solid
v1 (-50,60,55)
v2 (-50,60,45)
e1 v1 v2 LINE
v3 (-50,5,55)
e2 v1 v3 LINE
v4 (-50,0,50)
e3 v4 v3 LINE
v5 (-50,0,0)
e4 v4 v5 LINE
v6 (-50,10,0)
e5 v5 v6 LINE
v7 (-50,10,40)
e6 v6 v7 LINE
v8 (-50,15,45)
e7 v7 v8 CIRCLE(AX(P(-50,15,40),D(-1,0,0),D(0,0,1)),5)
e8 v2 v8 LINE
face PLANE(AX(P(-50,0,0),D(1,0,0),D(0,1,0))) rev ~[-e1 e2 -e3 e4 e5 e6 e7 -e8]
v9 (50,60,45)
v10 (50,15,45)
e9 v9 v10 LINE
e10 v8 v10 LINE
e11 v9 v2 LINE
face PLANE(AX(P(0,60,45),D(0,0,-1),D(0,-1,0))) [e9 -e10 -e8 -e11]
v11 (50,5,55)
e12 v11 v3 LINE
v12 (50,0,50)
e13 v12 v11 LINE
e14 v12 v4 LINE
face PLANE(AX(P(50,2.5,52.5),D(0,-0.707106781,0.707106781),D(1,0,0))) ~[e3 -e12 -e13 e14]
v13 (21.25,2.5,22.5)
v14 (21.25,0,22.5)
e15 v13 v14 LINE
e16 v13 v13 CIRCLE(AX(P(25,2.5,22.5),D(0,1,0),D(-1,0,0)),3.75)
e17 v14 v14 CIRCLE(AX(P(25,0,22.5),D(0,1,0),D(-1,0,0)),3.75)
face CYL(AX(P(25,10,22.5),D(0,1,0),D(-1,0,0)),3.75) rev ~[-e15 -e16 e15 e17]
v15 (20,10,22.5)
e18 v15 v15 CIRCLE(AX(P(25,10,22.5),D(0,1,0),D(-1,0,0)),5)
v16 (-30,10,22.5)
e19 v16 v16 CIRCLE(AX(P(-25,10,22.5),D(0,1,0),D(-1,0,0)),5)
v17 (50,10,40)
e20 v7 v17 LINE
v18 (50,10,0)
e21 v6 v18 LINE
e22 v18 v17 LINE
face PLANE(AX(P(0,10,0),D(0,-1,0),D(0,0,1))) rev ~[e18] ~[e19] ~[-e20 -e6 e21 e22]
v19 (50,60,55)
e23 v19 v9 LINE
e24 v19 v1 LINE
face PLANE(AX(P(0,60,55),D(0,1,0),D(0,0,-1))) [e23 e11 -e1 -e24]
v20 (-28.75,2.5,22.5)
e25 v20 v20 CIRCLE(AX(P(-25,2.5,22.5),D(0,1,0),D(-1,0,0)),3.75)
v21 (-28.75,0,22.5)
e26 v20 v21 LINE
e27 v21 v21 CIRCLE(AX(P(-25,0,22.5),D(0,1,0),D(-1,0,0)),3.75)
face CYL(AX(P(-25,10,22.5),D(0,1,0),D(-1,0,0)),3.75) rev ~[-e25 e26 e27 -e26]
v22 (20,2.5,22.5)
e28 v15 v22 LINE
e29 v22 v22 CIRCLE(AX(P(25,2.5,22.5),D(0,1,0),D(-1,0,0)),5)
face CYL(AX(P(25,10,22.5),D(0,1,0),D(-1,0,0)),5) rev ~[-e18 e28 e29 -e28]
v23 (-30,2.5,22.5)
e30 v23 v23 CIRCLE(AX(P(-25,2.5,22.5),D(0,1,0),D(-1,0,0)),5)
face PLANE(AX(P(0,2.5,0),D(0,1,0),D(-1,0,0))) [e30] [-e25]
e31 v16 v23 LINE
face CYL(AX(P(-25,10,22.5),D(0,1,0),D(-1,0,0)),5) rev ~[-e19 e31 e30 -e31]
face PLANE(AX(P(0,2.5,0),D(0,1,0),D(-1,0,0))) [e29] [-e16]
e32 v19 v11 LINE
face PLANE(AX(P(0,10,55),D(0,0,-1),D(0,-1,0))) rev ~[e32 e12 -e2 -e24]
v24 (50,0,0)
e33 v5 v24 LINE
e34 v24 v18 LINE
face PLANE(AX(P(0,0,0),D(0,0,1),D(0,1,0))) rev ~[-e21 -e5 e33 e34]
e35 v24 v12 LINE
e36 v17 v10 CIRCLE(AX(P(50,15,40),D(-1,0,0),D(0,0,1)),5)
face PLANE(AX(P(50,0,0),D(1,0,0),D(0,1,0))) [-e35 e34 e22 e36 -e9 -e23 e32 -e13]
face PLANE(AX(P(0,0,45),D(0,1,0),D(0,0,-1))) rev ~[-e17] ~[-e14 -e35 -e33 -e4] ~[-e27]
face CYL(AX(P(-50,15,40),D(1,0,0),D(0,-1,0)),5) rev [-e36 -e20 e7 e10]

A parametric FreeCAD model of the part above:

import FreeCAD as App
import Part
import Sketcher
from FreeCAD import Vector


def edges_at(feature, points):
    """Names of the edges that pass closest to the given points."""
    edges = feature.Shape.Edges
    near = lambda p: min(range(len(edges)), key=lambda i: edges[i].distToShape(Part.Vertex(*p))[0])
    return sorted({f"Edge{near(p) + 1}" for p in points})

doc = App.newDocument("Part")
body = doc.addObject("PartDesign::Body", "Body")

sketch1 = doc.addObject("Sketcher::SketchObject", "Sketch")
body.addObject(sketch1)
sketch1.AttachmentSupport = (doc.YZ_Plane, [""])
sketch1.MapMode = "FlatFace"
sketch1.addGeometry([
    Part.LineSegment(Vector(0, 55, 0), Vector(0, 0, 0)),
    Part.LineSegment(Vector(0, 0, 0), Vector(10, 0, 0)),
    Part.LineSegment(Vector(10, 0, 0), Vector(10, 45, 0)),
    Part.LineSegment(Vector(10, 45, 0), Vector(60, 45, 0)),
    Part.LineSegment(Vector(60, 45, 0), Vector(60, 55, 0)),
    Part.LineSegment(Vector(60, 55, 0), Vector(0, 55, 0)),
], False)
sketch1.addConstraint([
    Sketcher.Constraint("Coincident", 0, 2, 1, 1),
    Sketcher.Constraint("Coincident", 1, 2, 2, 1),
    Sketcher.Constraint("Coincident", 2, 2, 3, 1),
    Sketcher.Constraint("Coincident", 3, 2, 4, 1),
    Sketcher.Constraint("Coincident", 4, 2, 5, 1),
    Sketcher.Constraint("Coincident", 5, 2, 0, 1),
    Sketcher.Constraint("Vertical", 0),
    Sketcher.Constraint("Horizontal", 1),
    Sketcher.Constraint("Vertical", 2),
    Sketcher.Constraint("Horizontal", 3),
    Sketcher.Constraint("Vertical", 4),
    Sketcher.Constraint("Horizontal", 5),
    Sketcher.Constraint("Coincident", 0, 2, -1, 1),
    Sketcher.Constraint("Equal", 1, 4),
    Sketcher.Constraint("DistanceX", 1, 1, 1, 2, 10.0),
    Sketcher.Constraint("DistanceX", 3, 1, 3, 2, 50.0),
    Sketcher.Constraint("DistanceY", 0, 2, 0, 1, 55.0),
])
pad1 = doc.addObject("PartDesign::Pad", "Pad")
body.addObject(pad1)
pad1.Profile = sketch1
pad1.Length = 100
pad1.Midplane = True

sketch2 = doc.addObject("Sketcher::SketchObject", "Sketch001")
body.addObject(sketch2)
sketch2.AttachmentSupport = (doc.XZ_Plane, [""])
sketch2.MapMode = "FlatFace"
sketch2.AttachmentOffset = App.Placement(Vector(0, 0, -10), App.Rotation())
sketch2.addGeometry([
    Part.Circle(Vector(-25, 22.5, 0), Vector(0, 0, 1), 3.8),
    Part.Circle(Vector(25, 22.5, 0), Vector(0, 0, 1), 3.8),
], False)
sketch2.addConstraint([
    Sketcher.Constraint("Equal", 0, 1),
    Sketcher.Constraint("Symmetric", 0, 3, 1, 3, -2),
    Sketcher.Constraint("Diameter", 0, 7.5),
    Sketcher.Constraint("DistanceX", 0, 3, -1, 1, 25.0),
    Sketcher.Constraint("DistanceY", -1, 1, 0, 3, 22.5),
])
pocket1 = doc.addObject("PartDesign::Pocket", "Pocket")
body.addObject(pocket1)
pocket1.Profile = sketch2
pocket1.Length = 28
pocket1.Reversed = True

sketch3 = doc.addObject("Sketcher::SketchObject", "Sketch002")
body.addObject(sketch3)
sketch3.AttachmentSupport = (doc.XZ_Plane, [""])
sketch3.MapMode = "FlatFace"
sketch3.AttachmentOffset = App.Placement(Vector(0, 0, -10), App.Rotation())
sketch3.addGeometry([
    Part.Circle(Vector(25, 22.5, 0), Vector(0, 0, 1), 5),
    Part.Circle(Vector(25, 22.5, 0), Vector(0, 0, 1), 3.8),
    Part.Circle(Vector(-25, 22.5, 0), Vector(0, 0, 1), 5),
    Part.Circle(Vector(-25, 22.5, 0), Vector(0, 0, 1), 3.8),
], False)
sketch3.addConstraint([
    Sketcher.Constraint("Coincident", 1, 3, 0, 3),
    Sketcher.Constraint("Coincident", 3, 3, 2, 3),
    Sketcher.Constraint("Equal", 0, 2),
    Sketcher.Constraint("Equal", 1, 3),
    Sketcher.Constraint("Symmetric", 0, 3, 2, 3, -2),
    Sketcher.Constraint("Diameter", 0, 10.0),
    Sketcher.Constraint("Diameter", 1, 7.5),
    Sketcher.Constraint("DistanceX", -1, 1, 0, 3, 25.0),
    Sketcher.Constraint("DistanceY", -1, 1, 0, 3, 22.5),
])
pocket2 = doc.addObject("PartDesign::Pocket", "Pocket001")
body.addObject(pocket2)
pocket2.Profile = sketch3
pocket2.Length = 7.5
pocket2.Reversed = True
doc.recompute()

fillet = doc.addObject("PartDesign::Fillet", "Fillet")
body.addObject(fillet)
fillet.Base = (pocket2, edges_at(pocket2, [(0, 10, 45)]))
fillet.Radius = 5
doc.recompute()

chamfer = doc.addObject("PartDesign::Chamfer", "Chamfer")
body.addObject(chamfer)
chamfer.Base = (fillet, edges_at(fillet, [(0, 0, 55)]))
chamfer.Size = 5

doc.recompute()
